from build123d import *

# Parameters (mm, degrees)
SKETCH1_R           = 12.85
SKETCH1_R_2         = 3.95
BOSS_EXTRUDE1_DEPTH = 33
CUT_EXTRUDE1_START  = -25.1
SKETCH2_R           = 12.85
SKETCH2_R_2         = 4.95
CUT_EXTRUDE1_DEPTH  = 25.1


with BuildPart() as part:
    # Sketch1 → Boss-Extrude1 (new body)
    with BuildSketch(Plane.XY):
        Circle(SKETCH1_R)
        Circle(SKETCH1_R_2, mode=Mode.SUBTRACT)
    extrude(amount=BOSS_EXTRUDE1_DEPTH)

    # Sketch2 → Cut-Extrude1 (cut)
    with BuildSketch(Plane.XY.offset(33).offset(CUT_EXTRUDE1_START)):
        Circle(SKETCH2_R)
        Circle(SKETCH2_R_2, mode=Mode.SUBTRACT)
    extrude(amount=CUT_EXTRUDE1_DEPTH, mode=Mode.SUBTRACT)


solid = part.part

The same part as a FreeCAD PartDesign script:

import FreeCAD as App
import Part
import Sketcher
from FreeCAD import Vector
Q = App.Units.Quantity

doc = App.newDocument("Part")
body = doc.addObject("PartDesign::Body", "Body")

sketch1 = body.newObject("Sketcher::SketchObject", "Sketch")
sketch1.AttachmentSupport = (doc.getObject("XY_Plane"), [""])
sketch1.MapMode = "FlatFace"
sketch1.addGeometry([
    Part.Circle(Vector(0, 0, 0), Vector(0, 0, 1), 12.85),
    Part.Circle(Vector(0, 0, 0), Vector(0, 0, 1), 3.95),
], False)
sketch1.addConstraint([
    Sketcher.Constraint("Coincident", 0, 3, -1, 1),
    Sketcher.Constraint("Coincident", 1, 3, -1, 1),
    Sketcher.Constraint("Diameter", 0, Q("25.7 mm")),
    Sketcher.Constraint("Diameter", 1, Q("7.9 mm")),
])
pad1 = body.newObject("PartDesign::Pad", "Pad")
pad1.Profile = sketch1
pad1.Length = 33

sketch2 = body.newObject("Sketcher::SketchObject", "Sketch001")
sketch2.AttachmentSupport = (doc.getObject("XY_Plane"), [""])
sketch2.MapMode = "FlatFace"
sketch2.AttachmentOffset = App.Placement(Vector(0, 0, 7.9), App.Rotation())
sketch2.addGeometry([
    Part.Circle(Vector(0, 0, 0), Vector(0, 0, 1), 12.85),
    Part.Circle(Vector(0, 0, 0), Vector(0, 0, 1), 4.95),
], False)
sketch2.addConstraint([
    Sketcher.Constraint("Coincident", 0, 3, -1, 1),
    Sketcher.Constraint("Coincident", 1, 3, -1, 1),
    Sketcher.Constraint("Diameter", 0, Q("25.7 mm")),
    Sketcher.Constraint("Diameter", 1, Q("9.9 mm")),
])
pocket1 = body.newObject("PartDesign::Pocket", "Pocket")
pocket1.Profile = sketch2
pocket1.Length = 25.1
pocket1.Reversed = True

doc.recompute()
